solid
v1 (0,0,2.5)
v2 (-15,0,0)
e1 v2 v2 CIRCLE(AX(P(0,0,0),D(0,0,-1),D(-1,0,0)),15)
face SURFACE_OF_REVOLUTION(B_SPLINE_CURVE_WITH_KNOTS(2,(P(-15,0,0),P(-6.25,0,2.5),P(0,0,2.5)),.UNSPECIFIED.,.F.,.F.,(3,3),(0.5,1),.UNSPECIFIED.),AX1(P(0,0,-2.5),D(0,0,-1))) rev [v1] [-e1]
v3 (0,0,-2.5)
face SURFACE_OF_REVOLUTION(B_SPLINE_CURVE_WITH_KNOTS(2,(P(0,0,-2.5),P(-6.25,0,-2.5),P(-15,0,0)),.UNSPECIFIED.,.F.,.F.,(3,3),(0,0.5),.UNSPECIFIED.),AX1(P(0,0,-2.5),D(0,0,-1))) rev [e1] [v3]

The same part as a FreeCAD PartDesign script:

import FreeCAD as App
import Part
import Sketcher

V = App.Vector

doc = App.newDocument("Part")
body = doc.addObject("PartDesign::Body", "Body")

sketch1 = doc.addObject("Sketcher::SketchObject", "Sketch")
body.addObject(sketch1)
sketch1.AttachmentSupport = (doc.XZ_Plane, [""])
sketch1.MapMode = "FlatFace"
sketch1.addGeometry([
    Part.LineSegment(V(0, 2.5, 0), V(0, -2.5, 0)),
    Part.BSplineCurve([V(-15, 0, 0), V(-6.25, -2.5, 0), V(0, -2.5, 0)], [3, 3], [0, 0.5], False, 2, [1, 1, 1], False),
    Part.BSplineCurve([V(0, 2.5, 0), V(-6.25, 2.5, 0), V(-15, 0, 0)], [3, 3], [0.5, 1], False, 2, [1, 1, 1], False),
], False)
sketch1.addConstraint([
    Sketcher.Constraint("Block", 1),
    Sketcher.Constraint("Block", 2),
    Sketcher.Constraint("Coincident", 0, 2, 1, 2),
    Sketcher.Constraint("Coincident", 2, 1, 0, 1),
])
revolution = doc.addObject("PartDesign::Revolution", "Revolution")
body.addObject(revolution)
revolution.Profile = sketch1
revolution.ReferenceAxis = (sketch1, ["V_Axis"])
revolution.Angle = 360

doc.recompute()
